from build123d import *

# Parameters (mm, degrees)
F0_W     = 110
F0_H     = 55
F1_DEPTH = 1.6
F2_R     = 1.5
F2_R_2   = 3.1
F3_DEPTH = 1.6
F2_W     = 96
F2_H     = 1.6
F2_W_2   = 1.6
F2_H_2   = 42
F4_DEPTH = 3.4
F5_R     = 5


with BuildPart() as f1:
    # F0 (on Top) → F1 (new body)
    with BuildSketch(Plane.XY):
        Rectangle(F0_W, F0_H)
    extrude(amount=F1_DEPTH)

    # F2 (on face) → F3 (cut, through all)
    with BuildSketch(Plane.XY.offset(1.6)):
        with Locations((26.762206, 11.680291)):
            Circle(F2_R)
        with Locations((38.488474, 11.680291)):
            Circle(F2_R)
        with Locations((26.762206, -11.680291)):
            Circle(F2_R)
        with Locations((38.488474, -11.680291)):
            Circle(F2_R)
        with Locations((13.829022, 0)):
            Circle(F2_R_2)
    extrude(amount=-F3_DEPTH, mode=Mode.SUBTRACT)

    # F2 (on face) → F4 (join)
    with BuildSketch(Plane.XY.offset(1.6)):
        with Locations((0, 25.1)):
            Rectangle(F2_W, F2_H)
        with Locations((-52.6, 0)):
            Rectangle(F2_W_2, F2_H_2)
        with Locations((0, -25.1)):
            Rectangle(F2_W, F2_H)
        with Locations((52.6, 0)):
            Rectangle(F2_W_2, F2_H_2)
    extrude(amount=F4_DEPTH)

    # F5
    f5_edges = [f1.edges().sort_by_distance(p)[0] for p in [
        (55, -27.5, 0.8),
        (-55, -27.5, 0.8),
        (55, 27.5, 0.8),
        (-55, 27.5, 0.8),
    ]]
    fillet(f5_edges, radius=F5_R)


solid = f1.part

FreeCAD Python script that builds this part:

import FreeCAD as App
import Part
import Sketcher

V = App.Vector
Q = App.Units.Quantity


def edges_at(feature, points):
    """Names of the edges that pass closest to the given points."""
    edges = feature.Shape.Edges
    near = lambda p: min(range(len(edges)), key=lambda i: edges[i].distToShape(Part.Vertex(*p))[0])
    return sorted({f"Edge{near(p) + 1}" for p in points})


def add_polygon(sketch, points):
    """Adds a closed chain of lines whose ends are joined by coincident constraints."""
    first, n = sketch.GeometryCount, len(points)
    for a, b in zip(points, points[1:] + points[:1]):
        sketch.addGeometry(Part.LineSegment(App.Vector(*a, 0), App.Vector(*b, 0)), False)
    for i in range(n):
        sketch.addConstraint(Sketcher.Constraint("Coincident", first + i, 2, first + (i + 1) % n, 1))

doc = App.newDocument("Part")
body = doc.addObject("PartDesign::Body", "Body")

# Sketch on XY plane
sketch1 = body.newObject("Sketcher::SketchObject", "Sketch")
sketch1.AttachmentSupport = (doc.getObject("XY_Plane"), [""])
sketch1.MapMode = "FlatFace"
add_polygon(sketch1, [(-55, 27.5), (-55, -27.5), (55, -27.5), (55, 27.5)])  # lines 0-3
sketch1.addConstraint(Sketcher.Constraint("Vertical", 0))
sketch1.addConstraint(Sketcher.Constraint("Horizontal", 1))
sketch1.addConstraint(Sketcher.Constraint("Vertical", 2))
sketch1.addConstraint(Sketcher.Constraint("Horizontal", 3))
sketch1.addConstraint(Sketcher.Constraint("Symmetric", 0, 2, 2, 2, -1, 1))
sketch1.addConstraint(Sketcher.Constraint("DistanceX", 1, 1, 1, 2, Q("110 mm")))
sketch1.addConstraint(Sketcher.Constraint("DistanceY", 0, 2, 0, 1, Q("55 mm")))
pad1 = body.newObject("PartDesign::Pad", "Pad")
pad1.Profile = sketch1
pad1.Length = 1.6

# Sketch on XY plane
sketch2 = body.newObject("Sketcher::SketchObject", "Sketch001")
sketch2.AttachmentSupport = (doc.getObject("XY_Plane"), [""])
sketch2.MapMode = "FlatFace"
sketch2.AttachmentOffset = App.Placement(V(0, 0, 1.6), App.Rotation())
sketch2.addGeometry(Part.Circle(V(26.762206, 11.680291, 0), V(0, 0, 1), 1.5), False)
sketch2.addGeometry(Part.Circle(V(38.488474, 11.680291, 0), V(0, 0, 1), 1.5), False)
sketch2.addGeometry(Part.Circle(V(26.762206, -11.680291, 0), V(0, 0, 1), 1.5), False)
sketch2.addGeometry(Part.Circle(V(38.488474, -11.680291, 0), V(0, 0, 1), 1.5), False)
sketch2.addGeometry(Part.Circle(V(13.829022, 0, 0), V(0, 0, 1), 3.1), False)
sketch2.addConstraint(Sketcher.Constraint("Equal", 0, 1))
sketch2.addConstraint(Sketcher.Constraint("Equal", 1, 2))
sketch2.addConstraint(Sketcher.Constraint("Equal", 2, 3))
sketch2.addConstraint(Sketcher.Constraint("Symmetric", 0, 3, 2, 3, -1))
sketch2.addConstraint(Sketcher.Constraint("Symmetric", 1, 3, 3, 3, -1))
sketch2.addConstraint(Sketcher.Constraint("PointOnObject", 4, 3, -1))
sketch2.addConstraint(Sketcher.Constraint("Horizontal", 0, 3, 1, 3))
sketch2.addConstraint(Sketcher.Constraint("Diameter", 0, Q("3 mm")))
sketch2.addConstraint(Sketcher.Constraint("Diameter", 4, Q("6.2 mm")))
sketch2.addConstraint(Sketcher.Constraint("DistanceY", -1, 1, 0, 3, Q("11.680291 mm")))
sketch2.addConstraint(Sketcher.Constraint("DistanceX", 4, 3, 1, 3, Q("24.659452 mm")))
sketch2.addConstraint(Sketcher.Constraint("DistanceX", -1, 1, 0, 3, Q("26.762206 mm")))
sketch2.addConstraint(Sketcher.Constraint("DistanceX", -1, 1, 1, 3, Q("38.488474 mm")))
pocket1 = body.newObject("PartDesign::Pocket", "Pocket")
pocket1.Profile = sketch2
pocket1.Type = "ThroughAll"

# Sketch on XY plane
sketch3 = body.newObject("Sketcher::SketchObject", "Sketch002")
sketch3.AttachmentSupport = (doc.getObject("XY_Plane"), [""])
sketch3.MapMode = "FlatFace"
sketch3.AttachmentOffset = App.Placement(V(0, 0, 1.6), App.Rotation())
add_polygon(sketch3, [(-48, 25.9), (-48, 24.3), (48, 24.3), (48, 25.9)])  # lines 0-3
add_polygon(sketch3, [(-53.4, 21), (-53.4, -21), (-51.8, -21), (-51.8, 21)])  # lines 4-7
add_polygon(sketch3, [(-48, -24.3), (-48, -25.9), (48, -25.9), (48, -24.3)])  # lines 8-11
add_polygon(sketch3, [(51.8, 21), (51.8, -21), (53.4, -21), (53.4, 21)])  # lines 12-15
sketch3.addConstraint(Sketcher.Constraint("Vertical", 0))
sketch3.addConstraint(Sketcher.Constraint("Horizontal", 1))
sketch3.addConstraint(Sketcher.Constraint("Vertical", 2))
sketch3.addConstraint(Sketcher.Constraint("Horizontal", 3))
sketch3.addConstraint(Sketcher.Constraint("Vertical", 4))
sketch3.addConstraint(Sketcher.Constraint("Horizontal", 5))
sketch3.addConstraint(Sketcher.Constraint("Vertical", 6))
sketch3.addConstraint(Sketcher.Constraint("Horizontal", 7))
sketch3.addConstraint(Sketcher.Constraint("Vertical", 8))
sketch3.addConstraint(Sketcher.Constraint("Horizontal", 9))
sketch3.addConstraint(Sketcher.Constraint("Vertical", 10))
sketch3.addConstraint(Sketcher.Constraint("Horizontal", 11))
sketch3.addConstraint(Sketcher.Constraint("Vertical", 12))
sketch3.addConstraint(Sketcher.Constraint("Horizontal", 13))
sketch3.addConstraint(Sketcher.Constraint("Vertical", 14))
sketch3.addConstraint(Sketcher.Constraint("Horizontal", 15))
sketch3.addConstraint(Sketcher.Constraint("Symmetric", 2, 2, 8, 2, -1, 1))
sketch3.addConstraint(Sketcher.Constraint("Symmetric", 0, 2, 10, 2, -1, 1))
sketch3.addConstraint(Sketcher.Constraint("Symmetric", 6, 2, 12, 2, -1, 1))
sketch3.addConstraint(Sketcher.Constraint("Symmetric", 4, 2, 14, 2, -1, 1))
sketch3.addConstraint(Sketcher.Constraint("Horizontal", 5, 2, 12, 2))
sketch3.addConstraint(Sketcher.Constraint("Vertical", 3, 2, 8, 2))
sketch3.addConstraint(Sketcher.Constraint("Equal", 15, 0))
sketch3.addConstraint(Sketcher.Constraint("DistanceX", 1, 1, 1, 2, Q("96 mm")))
sketch3.addConstraint(Sketcher.Constraint("DistanceY", 4, 2, 4, 1, Q("42 mm")))
sketch3.addConstraint(Sketcher.Constraint("DistanceX", 5, 1, 5, 2, Q("1.6 mm")))
sketch3.addConstraint(Sketcher.Constraint("DistanceY", -1, 1, 0, 2, Q("24.3 mm")))
sketch3.addConstraint(Sketcher.Constraint("DistanceX", 4, 2, -1, 1, Q("53.4 mm")))
pad2 = body.newObject("PartDesign::Pad", "Pad001")
pad2.Profile = sketch3
pad2.Length = 3.4
doc.recompute()

fillet = body.newObject("PartDesign::Fillet", "Fillet")
fillet.Base = (pad2, edges_at(pad2, [
    (55, -27.5, 0.8),
    (-55, -27.5, 0.8),
    (55, 27.5, 0.8),
    (-55, 27.5, 0.8),
]))
fillet.Radius = 5

doc.recompute()
